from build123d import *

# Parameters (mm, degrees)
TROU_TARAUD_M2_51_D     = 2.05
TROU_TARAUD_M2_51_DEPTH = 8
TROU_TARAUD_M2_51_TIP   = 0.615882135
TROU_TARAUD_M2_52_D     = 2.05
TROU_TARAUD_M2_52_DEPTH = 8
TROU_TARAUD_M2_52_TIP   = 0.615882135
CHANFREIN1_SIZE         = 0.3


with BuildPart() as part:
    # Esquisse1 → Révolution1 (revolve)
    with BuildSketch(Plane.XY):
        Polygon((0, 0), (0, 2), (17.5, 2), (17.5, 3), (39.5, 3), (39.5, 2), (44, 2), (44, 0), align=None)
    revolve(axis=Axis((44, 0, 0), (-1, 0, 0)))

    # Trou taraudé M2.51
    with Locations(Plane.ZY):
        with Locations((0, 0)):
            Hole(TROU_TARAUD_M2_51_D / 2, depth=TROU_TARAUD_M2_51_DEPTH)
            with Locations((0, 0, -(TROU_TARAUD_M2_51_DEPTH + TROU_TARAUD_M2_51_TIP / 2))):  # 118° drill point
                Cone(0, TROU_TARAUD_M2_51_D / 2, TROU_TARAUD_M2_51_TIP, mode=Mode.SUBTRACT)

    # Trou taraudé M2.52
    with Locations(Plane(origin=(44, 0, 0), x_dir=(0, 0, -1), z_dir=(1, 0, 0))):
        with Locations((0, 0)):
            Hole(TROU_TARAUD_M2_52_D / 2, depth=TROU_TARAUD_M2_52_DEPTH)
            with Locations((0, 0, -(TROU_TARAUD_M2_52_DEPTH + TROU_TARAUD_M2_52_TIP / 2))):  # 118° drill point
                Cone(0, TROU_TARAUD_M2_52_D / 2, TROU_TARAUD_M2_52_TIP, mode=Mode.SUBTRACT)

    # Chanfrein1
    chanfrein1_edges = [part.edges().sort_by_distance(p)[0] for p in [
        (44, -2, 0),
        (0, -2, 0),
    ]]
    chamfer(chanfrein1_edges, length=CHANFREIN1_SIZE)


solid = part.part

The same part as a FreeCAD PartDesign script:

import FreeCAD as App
import Part
import Sketcher


def edges_at(feature, points):
    """Names of the edges that pass closest to the given points."""
    edges = feature.Shape.Edges
    near = lambda p: min(range(len(edges)), key=lambda i: edges[i].distToShape(Part.Vertex(*p))[0])
    return sorted({f"Edge{near(p) + 1}" for p in points})

doc = App.newDocument("Part")
body = doc.addObject("PartDesign::Body", "Body")

sketch1 = doc.addObject("Sketcher::SketchObject", "Sketch")
body.addObject(sketch1)
sketch1.AttachmentSupport = (doc.XY_Plane, [""])
sketch1.MapMode = "FlatFace"
sketch1.addGeometry([
    Part.LineSegment(App.Vector(0, 2, 0), App.Vector(0, 0, 0)),
    Part.LineSegment(App.Vector(0, 0, 0), App.Vector(44, 0, 0)),
    Part.LineSegment(App.Vector(44, 0, 0), App.Vector(44, 2, 0)),
    Part.LineSegment(App.Vector(44, 2, 0), App.Vector(39.5, 2, 0)),
    Part.LineSegment(App.Vector(39.5, 2, 0), App.Vector(39.5, 3, 0)),
    Part.LineSegment(App.Vector(39.5, 3, 0), App.Vector(17.5, 3, 0)),
    Part.LineSegment(App.Vector(17.5, 3, 0), App.Vector(17.5, 2, 0)),
    Part.LineSegment(App.Vector(17.5, 2, 0), App.Vector(0, 2, 0)),
], False)
sketch1.addConstraint([
    Sketcher.Constraint("Coincident", 0, 2, 1, 1),
    Sketcher.Constraint("Coincident", 1, 2, 2, 1),
    Sketcher.Constraint("Coincident", 2, 2, 3, 1),
    Sketcher.Constraint("Coincident", 3, 2, 4, 1),
    Sketcher.Constraint("Coincident", 4, 2, 5, 1),
    Sketcher.Constraint("Coincident", 5, 2, 6, 1),
    Sketcher.Constraint("Coincident", 6, 2, 7, 1),
    Sketcher.Constraint("Coincident", 7, 2, 0, 1),
    Sketcher.Constraint("Vertical", 0),
    Sketcher.Constraint("Horizontal", 1),
    Sketcher.Constraint("Vertical", 2),
    Sketcher.Constraint("Horizontal", 3),
    Sketcher.Constraint("Vertical", 4),
    Sketcher.Constraint("Horizontal", 5),
    Sketcher.Constraint("Vertical", 6),
    Sketcher.Constraint("Horizontal", 7),
    Sketcher.Constraint("Coincident", 0, 2, -1, 1),
    Sketcher.Constraint("Horizontal", 3, 2, 6, 2),
    Sketcher.Constraint("DistanceX", 1, 1, 1, 2, 44.0),
    Sketcher.Constraint("DistanceX", 5, 2, 5, 1, 22.0),
    Sketcher.Constraint("DistanceY", 0, 2, 0, 1, 2.0),
    Sketcher.Constraint("DistanceY", 4, 1, 4, 2, 1.0),
    Sketcher.Constraint("DistanceX", 3, 2, 3, 1, 4.5),
])
revolution = doc.addObject("PartDesign::Revolution", "Revolution")
body.addObject(revolution)
revolution.Profile = sketch1
revolution.ReferenceAxis = (sketch1, ["H_Axis"])
revolution.Angle = 360

sketch2 = doc.addObject("Sketcher::SketchObject", "Sketch001")
body.addObject(sketch2)
sketch2.AttachmentSupport = (doc.YZ_Plane, [""])
sketch2.MapMode = "FlatFace"
sketch2.addGeometry(Part.Circle(App.Vector(0, 0, 0), App.Vector(0, 0, 1), 1), False)
sketch2.addConstraint([
    Sketcher.Constraint("Coincident", 0, 3, -1, 1),
    Sketcher.Constraint("Diameter", 0, 2.05),
])
doc.recompute()
hole = doc.addObject("PartDesign::Hole", "Hole")
body.addObject(hole)
hole.Profile = sketch2
hole.ThreadType = "None"
hole.Diameter = 2.05
hole.DepthType = "Dimension"
hole.Depth = 8
hole.DrillPoint = "Angled"
hole.DrillPointAngle = 118
hole.Reversed = True

sketch3 = doc.addObject("Sketcher::SketchObject", "Sketch002")
body.addObject(sketch3)
sketch3.AttachmentSupport = (doc.YZ_Plane, [""])
sketch3.MapMode = "FlatFace"
sketch3.AttachmentOffset = App.Placement(App.Vector(0, 0, 44), App.Rotation())
sketch3.addGeometry(Part.Circle(App.Vector(0, 0, 0), App.Vector(0, 0, 1), 1), False)
sketch3.addConstraint([
    Sketcher.Constraint("Coincident", 0, 3, -1, 1),
    Sketcher.Constraint("Diameter", 0, 2.05),
])
doc.recompute()
hole2 = doc.addObject("PartDesign::Hole", "Hole001")
body.addObject(hole2)
hole2.Profile = sketch3
hole2.ThreadType = "None"
hole2.Diameter = 2.05
hole2.DepthType = "Dimension"
hole2.Depth = 8
hole2.DrillPoint = "Angled"
hole2.DrillPointAngle = 118
doc.recompute()

chamfer = doc.addObject("PartDesign::Chamfer", "Chamfer")
body.addObject(chamfer)
chamfer.Base = (hole2, edges_at(hole2, [(44, -2, 0), (0, -2, 0)]))
chamfer.Size = 0.3

doc.recompute()
